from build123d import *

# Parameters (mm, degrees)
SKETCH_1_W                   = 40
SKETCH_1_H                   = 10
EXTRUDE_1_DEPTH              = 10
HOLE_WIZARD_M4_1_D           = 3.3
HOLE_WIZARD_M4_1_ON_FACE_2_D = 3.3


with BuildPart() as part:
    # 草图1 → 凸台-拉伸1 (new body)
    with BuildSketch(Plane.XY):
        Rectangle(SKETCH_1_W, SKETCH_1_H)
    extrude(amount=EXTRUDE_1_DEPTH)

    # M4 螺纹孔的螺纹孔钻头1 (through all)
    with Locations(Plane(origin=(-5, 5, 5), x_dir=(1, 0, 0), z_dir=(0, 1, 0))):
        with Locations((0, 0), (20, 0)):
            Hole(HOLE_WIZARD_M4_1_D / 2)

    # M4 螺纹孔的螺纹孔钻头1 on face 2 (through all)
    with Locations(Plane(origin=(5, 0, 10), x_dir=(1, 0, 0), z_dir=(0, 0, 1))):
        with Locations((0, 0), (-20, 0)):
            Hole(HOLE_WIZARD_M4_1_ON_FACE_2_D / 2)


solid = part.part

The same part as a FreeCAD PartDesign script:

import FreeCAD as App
import Part
import Sketcher
from FreeCAD import Vector
Q = App.Units.Quantity

doc = App.newDocument("Part")
params = doc.addObject("Spreadsheet::Sheet", "Params")
for row, (alias, value) in enumerate([
    ("sketch1_width", "40 mm"),
    ("sketch1_height", "10 mm"),
    ("pad1_length", "10 mm"),
    ("sketch2_diameter", "3.3 mm"),
    ("hole_diameter", "3.3 mm"),
    ("sketch3_diameter", "3.3 mm"),
    ("hole2_diameter", "3.3 mm"),
], start=1):
    params.set(f"A{row}", alias)
    params.set(f"B{row}", "=" + value)
    params.setAlias(f"B{row}", alias)

body = doc.addObject("PartDesign::Body", "Body")

# Sketch on XY plane
sketch1 = body.newObject("Sketcher::SketchObject", "Sketch")
sketch1.AttachmentSupport = (doc.getObject("XY_Plane"), [""])
sketch1.MapMode = "FlatFace"
sketch1.addGeometry([
    Part.LineSegment(Vector(-20, 5, 0), Vector(-20, -5, 0)),
    Part.LineSegment(Vector(-20, -5, 0), Vector(20, -5, 0)),
    Part.LineSegment(Vector(20, -5, 0), Vector(20, 5, 0)),
    Part.LineSegment(Vector(20, 5, 0), Vector(-20, 5, 0)),
], False)
sketch1.addConstraint([
    Sketcher.Constraint("Coincident", 0, 2, 1, 1),
    Sketcher.Constraint("Coincident", 1, 2, 2, 1),
    Sketcher.Constraint("Coincident", 2, 2, 3, 1),
    Sketcher.Constraint("Coincident", 3, 2, 0, 1),
    Sketcher.Constraint("Vertical", 0),
    Sketcher.Constraint("Horizontal", 1),
    Sketcher.Constraint("Vertical", 2),
    Sketcher.Constraint("Horizontal", 3),
    Sketcher.Constraint("Symmetric", 0, 2, 2, 2, -1, 1),
    Sketcher.Constraint("DistanceX", 1, 1, 1, 2, Q("40 mm")),
    Sketcher.Constraint("DistanceY", 0, 2, 0, 1, Q("10 mm")),
])
sketch1.setExpression("Constraints[9]", "Params.sketch1_width")
sketch1.setExpression("Constraints[10]", "Params.sketch1_height")
pad1 = body.newObject("PartDesign::Pad", "Pad")
pad1.Profile = sketch1
pad1.setExpression("Length", "Params.pad1_length")

# Sketch on XZ plane
sketch2 = body.newObject("Sketcher::SketchObject", "Sketch001")
sketch2.AttachmentSupport = (doc.getObject("XZ_Plane"), [""])
sketch2.MapMode = "FlatFace"
sketch2.AttachmentOffset = App.Placement(Vector(0, 0, -5), App.Rotation())
sketch2.addGeometry([
    Part.Circle(Vector(-5, 5, 0), Vector(0, 0, 1), 1.6),
    Part.Circle(Vector(15, 5, 0), Vector(0, 0, 1), 1.6),
], False)
sketch2.addConstraint([
    Sketcher.Constraint("Equal", 0, 1),
    Sketcher.Constraint("Horizontal", 0, 3, 1, 3),
    Sketcher.Constraint("Diameter", 0, Q("3.3 mm")),
    Sketcher.Constraint("DistanceX", 0, 3, -1, 1, Q("5 mm")),
    Sketcher.Constraint("DistanceY", -1, 1, 0, 3, Q("5 mm")),
    Sketcher.Constraint("DistanceX", -1, 1, 1, 3, Q("15 mm")),
])
sketch2.setExpression("Constraints[2]", "Params.sketch2_diameter")
doc.recompute()
hole = body.newObject("PartDesign::Hole", "Hole")
hole.Profile = sketch2
hole.ThreadType = "None"
hole.setExpression("Diameter", "Params.hole_diameter")
hole.DepthType = "ThroughAll"
hole.Reversed = True

# Sketch on XY plane
sketch3 = body.newObject("Sketcher::SketchObject", "Sketch002")
sketch3.AttachmentSupport = (doc.getObject("XY_Plane"), [""])
sketch3.MapMode = "FlatFace"
sketch3.AttachmentOffset = App.Placement(Vector(0, 0, 10), App.Rotation())
sketch3.addGeometry([
    Part.Circle(Vector(5, 0, 0), Vector(0, 0, 1), 1.6),
    Part.Circle(Vector(-15, 0, 0), Vector(0, 0, 1), 1.6),
], False)
sketch3.addConstraint([
    Sketcher.Constraint("Equal", 0, 1),
    Sketcher.Constraint("PointOnObject", 0, 3, -1),
    Sketcher.Constraint("PointOnObject", 1, 3, -1),
    Sketcher.Constraint("Diameter", 0, Q("3.3 mm")),
    Sketcher.Constraint("DistanceX", -1, 1, 0, 3, Q("5 mm")),
    Sketcher.Constraint("DistanceX", 1, 3, -1, 1, Q("15 mm")),
])
sketch3.setExpression("Constraints[3]", "Params.sketch3_diameter")
doc.recompute()
hole2 = body.newObject("PartDesign::Hole", "Hole001")
hole2.Profile = sketch3
hole2.ThreadType = "None"
hole2.setExpression("Diameter", "Params.hole2_diameter")
hole2.DepthType = "ThroughAll"

doc.recompute()
